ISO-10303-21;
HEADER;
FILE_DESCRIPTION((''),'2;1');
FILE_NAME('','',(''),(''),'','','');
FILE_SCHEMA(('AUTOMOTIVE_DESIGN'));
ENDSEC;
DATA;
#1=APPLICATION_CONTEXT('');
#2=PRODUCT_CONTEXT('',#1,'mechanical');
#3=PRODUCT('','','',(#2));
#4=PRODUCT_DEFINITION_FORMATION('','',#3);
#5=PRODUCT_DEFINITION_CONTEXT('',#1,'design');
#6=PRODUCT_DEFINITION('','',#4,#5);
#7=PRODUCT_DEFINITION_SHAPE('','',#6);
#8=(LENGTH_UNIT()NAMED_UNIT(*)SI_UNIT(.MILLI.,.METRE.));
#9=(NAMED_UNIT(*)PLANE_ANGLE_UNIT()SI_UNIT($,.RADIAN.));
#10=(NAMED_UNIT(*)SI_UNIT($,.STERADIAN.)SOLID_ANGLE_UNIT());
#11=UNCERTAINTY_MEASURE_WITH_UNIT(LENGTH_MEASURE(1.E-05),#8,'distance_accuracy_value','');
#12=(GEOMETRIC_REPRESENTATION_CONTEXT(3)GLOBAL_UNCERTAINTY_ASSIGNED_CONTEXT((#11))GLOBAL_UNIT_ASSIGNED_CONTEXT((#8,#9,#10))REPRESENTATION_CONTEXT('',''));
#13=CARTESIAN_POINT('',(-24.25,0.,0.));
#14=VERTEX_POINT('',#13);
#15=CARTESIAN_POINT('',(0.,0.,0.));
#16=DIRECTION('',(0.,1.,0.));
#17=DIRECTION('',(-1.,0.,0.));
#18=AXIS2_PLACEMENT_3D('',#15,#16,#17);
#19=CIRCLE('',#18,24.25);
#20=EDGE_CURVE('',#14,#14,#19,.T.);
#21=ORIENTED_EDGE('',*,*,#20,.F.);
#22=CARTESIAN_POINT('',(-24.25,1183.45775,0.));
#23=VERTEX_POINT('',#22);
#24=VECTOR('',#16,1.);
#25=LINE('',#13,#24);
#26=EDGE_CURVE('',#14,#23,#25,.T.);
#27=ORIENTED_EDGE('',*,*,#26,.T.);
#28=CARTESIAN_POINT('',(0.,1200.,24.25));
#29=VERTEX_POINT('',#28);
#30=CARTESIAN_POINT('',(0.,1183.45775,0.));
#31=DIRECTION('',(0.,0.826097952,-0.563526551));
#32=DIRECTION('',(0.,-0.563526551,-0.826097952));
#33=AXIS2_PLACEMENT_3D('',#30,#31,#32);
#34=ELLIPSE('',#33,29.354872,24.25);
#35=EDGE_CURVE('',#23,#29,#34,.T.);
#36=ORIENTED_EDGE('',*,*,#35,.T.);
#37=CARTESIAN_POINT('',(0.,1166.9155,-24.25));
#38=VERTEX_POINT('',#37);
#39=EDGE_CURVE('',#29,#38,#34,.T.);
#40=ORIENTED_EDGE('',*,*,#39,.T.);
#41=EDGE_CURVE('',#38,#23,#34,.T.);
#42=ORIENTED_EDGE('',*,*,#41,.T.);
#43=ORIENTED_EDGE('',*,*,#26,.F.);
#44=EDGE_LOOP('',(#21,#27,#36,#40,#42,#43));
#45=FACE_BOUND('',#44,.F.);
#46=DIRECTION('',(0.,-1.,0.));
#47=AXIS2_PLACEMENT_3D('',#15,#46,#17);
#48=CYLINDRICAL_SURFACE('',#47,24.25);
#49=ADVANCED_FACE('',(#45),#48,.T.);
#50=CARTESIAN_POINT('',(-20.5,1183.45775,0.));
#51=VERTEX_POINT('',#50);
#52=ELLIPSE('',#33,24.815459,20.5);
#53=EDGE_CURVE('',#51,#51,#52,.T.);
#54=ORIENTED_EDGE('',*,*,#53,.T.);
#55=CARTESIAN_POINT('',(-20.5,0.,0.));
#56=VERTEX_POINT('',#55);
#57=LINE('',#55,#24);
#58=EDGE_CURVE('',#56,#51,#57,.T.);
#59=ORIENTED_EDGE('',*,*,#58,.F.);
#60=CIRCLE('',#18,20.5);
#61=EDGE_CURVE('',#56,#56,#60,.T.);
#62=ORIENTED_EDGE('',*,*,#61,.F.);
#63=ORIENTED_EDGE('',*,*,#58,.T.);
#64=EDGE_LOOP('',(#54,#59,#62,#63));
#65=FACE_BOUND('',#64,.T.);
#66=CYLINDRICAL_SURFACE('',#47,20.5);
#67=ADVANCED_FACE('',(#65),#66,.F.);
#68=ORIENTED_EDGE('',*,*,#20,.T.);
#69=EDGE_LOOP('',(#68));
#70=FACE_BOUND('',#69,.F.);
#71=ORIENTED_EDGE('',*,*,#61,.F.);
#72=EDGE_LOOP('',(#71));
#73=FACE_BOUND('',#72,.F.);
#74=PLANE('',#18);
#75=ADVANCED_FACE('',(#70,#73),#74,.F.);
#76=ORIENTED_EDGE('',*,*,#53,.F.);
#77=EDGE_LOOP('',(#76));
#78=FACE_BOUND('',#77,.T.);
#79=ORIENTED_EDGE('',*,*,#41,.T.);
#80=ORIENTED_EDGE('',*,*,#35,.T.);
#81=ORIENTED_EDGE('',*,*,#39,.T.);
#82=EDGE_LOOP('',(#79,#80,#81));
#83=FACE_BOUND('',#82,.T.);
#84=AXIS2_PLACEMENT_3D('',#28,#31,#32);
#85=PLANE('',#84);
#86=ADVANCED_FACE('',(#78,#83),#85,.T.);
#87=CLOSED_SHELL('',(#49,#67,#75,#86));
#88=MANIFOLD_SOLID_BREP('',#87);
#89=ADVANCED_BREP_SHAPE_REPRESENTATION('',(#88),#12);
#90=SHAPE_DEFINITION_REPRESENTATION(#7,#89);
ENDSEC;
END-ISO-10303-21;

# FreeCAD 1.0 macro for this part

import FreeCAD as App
import Part
import Sketcher
from FreeCAD import Vector
Q = App.Units.Quantity

doc = App.newDocument("Part")
body = doc.addObject("PartDesign::Body", "Body")

sketch1 = body.newObject("Sketcher::SketchObject", "Sketch")
sketch1.AttachmentSupport = (doc.getObject("XZ_Plane"), [""])
sketch1.MapMode = "FlatFace"
sketch1.addGeometry(Part.Circle(Vector(0, 0, 0), Vector(0, 0, 1), 24.25), False)
sketch1.addGeometry(Part.Circle(Vector(0, 0, 0), Vector(0, 0, 1), 20.5), False)
sketch1.addConstraint(Sketcher.Constraint("Coincident", 0, 3, -1, 1))
sketch1.addConstraint(Sketcher.Constraint("Coincident", 1, 3, -1, 1))
sketch1.addConstraint(Sketcher.Constraint("Diameter", 1, Q("41 mm")))
sketch1.addConstraint(Sketcher.Constraint("Diameter", 0, Q("48.5 mm")))
pad1 = body.newObject("PartDesign::Pad", "Pad")
pad1.Profile = sketch1
pad1.Length = 1200
pad1.Reversed = True

sketch2 = body.newObject("Sketcher::SketchObject", "Sketch001")
sketch2.AttachmentSupport = (doc.getObject("YZ_Plane"), [""])
sketch2.MapMode = "FlatFace"
sketch2.addGeometry(Part.LineSegment(Vector(1200, 24.25, 0), Vector(1166.9155, -24.25, 0)), False)
sketch2.addGeometry(Part.LineSegment(Vector(1166.9155, -24.25, 0), Vector(1200, -24.25, 0)), False)
sketch2.addGeometry(Part.LineSegment(Vector(1200, -24.25, 0), Vector(1200, 24.25, 0)), False)
sketch2.addConstraint(Sketcher.Constraint("Coincident", 0, 2, 1, 1))
sketch2.addConstraint(Sketcher.Constraint("Coincident", 1, 2, 2, 1))
sketch2.addConstraint(Sketcher.Constraint("Coincident", 2, 2, 0, 1))
sketch2.addConstraint(Sketcher.Constraint("Horizontal", 1))
sketch2.addConstraint(Sketcher.Constraint("Vertical", 2))
sketch2.addConstraint(Sketcher.Constraint("DistanceY", 2, 1, 2, 2, Q("48.5 mm")))
sketch2.addConstraint(Sketcher.Constraint("DistanceX", -1, 1, 1, 2, Q("1200 mm")))
sketch2.addConstraint(Sketcher.Constraint("Angle", 0, Q("-124.3 deg")))
sketch2.addConstraint(Sketcher.Constraint("DistanceY", 0, 2, -1, 1, Q("24.25 mm")))
pocket1 = body.newObject("PartDesign::Pocket", "Pocket")
pocket1.Profile = sketch2
pocket1.Type = "ThroughAll"
pocket1.Midplane = True

doc.recompute()
